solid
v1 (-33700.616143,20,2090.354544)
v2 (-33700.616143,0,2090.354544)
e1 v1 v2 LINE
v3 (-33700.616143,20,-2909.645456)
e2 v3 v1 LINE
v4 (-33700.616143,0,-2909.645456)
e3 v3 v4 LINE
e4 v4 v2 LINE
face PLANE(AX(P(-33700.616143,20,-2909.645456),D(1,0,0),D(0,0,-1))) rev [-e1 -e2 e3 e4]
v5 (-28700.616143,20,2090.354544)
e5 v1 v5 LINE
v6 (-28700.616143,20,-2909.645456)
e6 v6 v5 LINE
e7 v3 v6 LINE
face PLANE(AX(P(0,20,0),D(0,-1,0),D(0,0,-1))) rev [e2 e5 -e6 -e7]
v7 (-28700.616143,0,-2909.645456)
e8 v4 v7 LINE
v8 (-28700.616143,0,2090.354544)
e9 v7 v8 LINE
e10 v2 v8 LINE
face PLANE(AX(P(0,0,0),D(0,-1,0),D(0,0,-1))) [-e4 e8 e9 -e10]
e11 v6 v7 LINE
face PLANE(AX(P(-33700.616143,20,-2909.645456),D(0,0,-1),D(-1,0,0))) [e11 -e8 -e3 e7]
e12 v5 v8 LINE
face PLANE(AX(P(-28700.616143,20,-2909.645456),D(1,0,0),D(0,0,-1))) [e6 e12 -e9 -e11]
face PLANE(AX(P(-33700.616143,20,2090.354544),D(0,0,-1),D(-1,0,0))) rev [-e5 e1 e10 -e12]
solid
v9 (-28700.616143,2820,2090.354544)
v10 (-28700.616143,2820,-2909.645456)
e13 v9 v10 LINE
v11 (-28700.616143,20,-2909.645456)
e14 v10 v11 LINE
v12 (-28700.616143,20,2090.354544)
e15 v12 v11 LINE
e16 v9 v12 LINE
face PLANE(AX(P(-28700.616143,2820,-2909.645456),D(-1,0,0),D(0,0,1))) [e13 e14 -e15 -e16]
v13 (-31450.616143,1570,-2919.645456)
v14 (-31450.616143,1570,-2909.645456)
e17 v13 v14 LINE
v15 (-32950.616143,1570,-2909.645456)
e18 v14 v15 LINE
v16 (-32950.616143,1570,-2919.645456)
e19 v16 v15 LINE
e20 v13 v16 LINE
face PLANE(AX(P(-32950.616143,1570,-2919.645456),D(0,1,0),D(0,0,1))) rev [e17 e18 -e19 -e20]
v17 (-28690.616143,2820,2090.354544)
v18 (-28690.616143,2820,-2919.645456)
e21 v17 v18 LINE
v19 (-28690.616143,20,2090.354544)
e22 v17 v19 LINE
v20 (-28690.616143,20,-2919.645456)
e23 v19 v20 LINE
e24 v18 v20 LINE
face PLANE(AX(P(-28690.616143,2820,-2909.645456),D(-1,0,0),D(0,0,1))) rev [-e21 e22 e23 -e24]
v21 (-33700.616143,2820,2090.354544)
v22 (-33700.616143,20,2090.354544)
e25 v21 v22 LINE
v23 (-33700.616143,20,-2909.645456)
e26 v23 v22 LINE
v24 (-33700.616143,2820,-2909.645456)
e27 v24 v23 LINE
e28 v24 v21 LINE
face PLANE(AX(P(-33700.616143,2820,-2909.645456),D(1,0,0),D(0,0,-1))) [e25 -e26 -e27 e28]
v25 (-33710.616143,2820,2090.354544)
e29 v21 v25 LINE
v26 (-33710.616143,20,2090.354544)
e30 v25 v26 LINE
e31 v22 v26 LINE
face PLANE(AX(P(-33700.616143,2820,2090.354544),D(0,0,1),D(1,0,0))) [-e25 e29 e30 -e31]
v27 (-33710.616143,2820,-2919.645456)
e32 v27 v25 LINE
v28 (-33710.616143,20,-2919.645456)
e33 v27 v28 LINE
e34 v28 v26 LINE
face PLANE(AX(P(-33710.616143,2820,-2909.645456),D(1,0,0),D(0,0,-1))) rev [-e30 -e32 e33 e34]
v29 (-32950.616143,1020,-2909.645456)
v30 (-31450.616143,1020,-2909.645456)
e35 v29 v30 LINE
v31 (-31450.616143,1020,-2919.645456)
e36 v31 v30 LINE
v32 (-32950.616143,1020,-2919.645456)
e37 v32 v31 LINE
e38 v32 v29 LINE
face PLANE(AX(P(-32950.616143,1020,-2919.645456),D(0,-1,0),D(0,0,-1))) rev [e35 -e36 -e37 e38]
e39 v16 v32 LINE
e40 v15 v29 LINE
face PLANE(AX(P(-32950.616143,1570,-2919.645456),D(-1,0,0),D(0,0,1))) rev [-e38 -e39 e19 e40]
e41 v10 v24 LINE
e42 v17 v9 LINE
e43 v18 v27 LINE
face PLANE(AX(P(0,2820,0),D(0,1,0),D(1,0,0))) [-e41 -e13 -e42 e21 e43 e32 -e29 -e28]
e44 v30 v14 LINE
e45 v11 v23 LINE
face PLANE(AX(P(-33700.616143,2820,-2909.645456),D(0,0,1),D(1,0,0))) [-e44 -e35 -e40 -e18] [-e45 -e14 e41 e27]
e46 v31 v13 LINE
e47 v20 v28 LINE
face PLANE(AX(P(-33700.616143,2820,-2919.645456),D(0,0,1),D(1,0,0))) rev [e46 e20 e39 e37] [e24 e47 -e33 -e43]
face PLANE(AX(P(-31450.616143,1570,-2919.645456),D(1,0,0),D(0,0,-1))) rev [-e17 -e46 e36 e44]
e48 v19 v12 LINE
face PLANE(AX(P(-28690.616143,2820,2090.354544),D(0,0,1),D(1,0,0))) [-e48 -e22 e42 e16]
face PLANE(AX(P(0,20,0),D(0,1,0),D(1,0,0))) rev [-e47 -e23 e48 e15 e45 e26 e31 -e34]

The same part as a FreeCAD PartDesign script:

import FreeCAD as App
import Part
import Sketcher
from FreeCAD import Vector

doc = App.newDocument("Part")
body = doc.addObject("PartDesign::Body", "Body")

# Sketch on XZ plane
sketch1 = body.newObject("Sketcher::SketchObject", "Sketch")
sketch1.AttachmentSupport = (doc.getObject("XZ_Plane"), [""])
sketch1.MapMode = "FlatFace"
sketch1.addGeometry([
    Part.LineSegment(Vector(-33701, -2910, 0), Vector(-33701, 2090, 0)),
    Part.LineSegment(Vector(-33701, 2090, 0), Vector(-28701, 2090, 0)),
    Part.LineSegment(Vector(-28701, 2090, 0), Vector(-28701, -2910, 0)),
    Part.LineSegment(Vector(-28701, -2910, 0), Vector(-33701, -2910, 0)),
], False)
sketch1.addConstraint([
    Sketcher.Constraint("Coincident", 0, 2, 1, 1),
    Sketcher.Constraint("Coincident", 1, 2, 2, 1),
    Sketcher.Constraint("Coincident", 2, 2, 3, 1),
    Sketcher.Constraint("Coincident", 3, 2, 0, 1),
    Sketcher.Constraint("Vertical", 0),
    Sketcher.Constraint("Horizontal", 1),
    Sketcher.Constraint("Vertical", 2),
    Sketcher.Constraint("Horizontal", 3),
    Sketcher.Constraint("Equal", 3, 0),
    Sketcher.Constraint("DistanceX", 1, 1, 1, 2, 5000.0),
    Sketcher.Constraint("DistanceX", 0, 2, -1, 1, 33700.616143),
    Sketcher.Constraint("DistanceY", -1, 1, 0, 2, 2090.354544),
])
pad1 = body.newObject("PartDesign::Pad", "Pad")
pad1.Profile = sketch1
pad1.Length = 20
pad1.Reversed = True
body2 = doc.addObject("PartDesign::Body", "Body001")

# Sketch on XZ plane
sketch2 = body2.newObject("Sketcher::SketchObject", "Sketch001")
sketch2.AttachmentSupport = (doc.getObject("XZ_Plane001"), [""])
sketch2.MapMode = "FlatFace"
sketch2.AttachmentOffset = App.Placement(Vector(0, 0, -20), App.Rotation())
sketch2.addGeometry([
    Part.LineSegment(Vector(-28701, -2910, 0), Vector(-28701, 2090, 0)),  # 0
    Part.LineSegment(Vector(-28701, 2090, 0), Vector(-28691, 2090, 0)),  # 1
    Part.LineSegment(Vector(-28691, 2090, 0), Vector(-28691, -2920, 0)),  # 2
    Part.LineSegment(Vector(-28691, -2920, 0), Vector(-33711, -2920, 0)),  # 3
    Part.LineSegment(Vector(-33711, -2920, 0), Vector(-33711, 2090, 0)),  # 4
    Part.LineSegment(Vector(-33711, 2090, 0), Vector(-33701, 2090, 0)),  # 5
    Part.LineSegment(Vector(-33701, 2090, 0), Vector(-33701, -2910, 0)),  # 6
    Part.LineSegment(Vector(-33701, -2910, 0), Vector(-28701, -2910, 0)),  # 7
], False)
sketch2.addConstraint([
    Sketcher.Constraint("Coincident", 0, 2, 1, 1),
    Sketcher.Constraint("Coincident", 1, 2, 2, 1),
    Sketcher.Constraint("Coincident", 2, 2, 3, 1),
    Sketcher.Constraint("Coincident", 3, 2, 4, 1),
    Sketcher.Constraint("Coincident", 4, 2, 5, 1),
    Sketcher.Constraint("Coincident", 5, 2, 6, 1),
    Sketcher.Constraint("Coincident", 6, 2, 7, 1),
    Sketcher.Constraint("Coincident", 7, 2, 0, 1),
    Sketcher.Constraint("Vertical", 0),
    Sketcher.Constraint("Horizontal", 1),
    Sketcher.Constraint("Vertical", 2),
    Sketcher.Constraint("Horizontal", 3),
    Sketcher.Constraint("Vertical", 4),
    Sketcher.Constraint("Horizontal", 5),
    Sketcher.Constraint("Vertical", 6),
    Sketcher.Constraint("Horizontal", 7),
    Sketcher.Constraint("Horizontal", 1, 2, 4, 2),
    Sketcher.Constraint("Equal", 1, 5),
    Sketcher.Constraint("Equal", 7, 0),
    Sketcher.Constraint("DistanceX", 1, 1, 1, 2, 10.0),
    Sketcher.Constraint("DistanceX", 3, 2, 3, 1, 5020.0),
    Sketcher.Constraint("DistanceY", 2, 2, 2, 1, 5010.0),
    Sketcher.Constraint("DistanceX", 0, 2, -1, 1, 28700.616143),
    Sketcher.Constraint("DistanceY", -1, 1, 0, 2, 2090.354544),
])
pad2 = body2.newObject("PartDesign::Pad", "Pad001")
pad2.Profile = sketch2
pad2.Length = 2800
pad2.Reversed = True

# Sketch on XY plane
sketch3 = body2.newObject("Sketcher::SketchObject", "Sketch002")
sketch3.AttachmentSupport = (doc.getObject("XY_Plane001"), [""])
sketch3.MapMode = "FlatFace"
sketch3.AttachmentOffset = App.Placement(Vector(0, 0, -2909.645456), App.Rotation())
sketch3.addGeometry([
    Part.LineSegment(Vector(-32951, 1570, 0), Vector(-32951, 1020, 0)),
    Part.LineSegment(Vector(-32951, 1020, 0), Vector(-31451, 1020, 0)),
    Part.LineSegment(Vector(-31451, 1020, 0), Vector(-31451, 1570, 0)),
    Part.LineSegment(Vector(-31451, 1570, 0), Vector(-32951, 1570, 0)),
], False)
sketch3.addConstraint([
    Sketcher.Constraint("Coincident", 0, 2, 1, 1),
    Sketcher.Constraint("Coincident", 1, 2, 2, 1),
    Sketcher.Constraint("Coincident", 2, 2, 3, 1),
    Sketcher.Constraint("Coincident", 3, 2, 0, 1),
    Sketcher.Constraint("Vertical", 0),
    Sketcher.Constraint("Horizontal", 1),
    Sketcher.Constraint("Vertical", 2),
    Sketcher.Constraint("Horizontal", 3),
    Sketcher.Constraint("DistanceX", 1, 1, 1, 2, 1500.0),
    Sketcher.Constraint("DistanceY", 0, 2, 0, 1, 550.0),
    Sketcher.Constraint("DistanceY", -1, 1, 0, 2, 1020.0),
    Sketcher.Constraint("DistanceX", 0, 2, -1, 1, 32950.616143),
])
pocket1 = body2.newObject("PartDesign::Pocket", "Pocket")
pocket1.Profile = sketch3
pocket1.Length = 10

doc.recompute()
